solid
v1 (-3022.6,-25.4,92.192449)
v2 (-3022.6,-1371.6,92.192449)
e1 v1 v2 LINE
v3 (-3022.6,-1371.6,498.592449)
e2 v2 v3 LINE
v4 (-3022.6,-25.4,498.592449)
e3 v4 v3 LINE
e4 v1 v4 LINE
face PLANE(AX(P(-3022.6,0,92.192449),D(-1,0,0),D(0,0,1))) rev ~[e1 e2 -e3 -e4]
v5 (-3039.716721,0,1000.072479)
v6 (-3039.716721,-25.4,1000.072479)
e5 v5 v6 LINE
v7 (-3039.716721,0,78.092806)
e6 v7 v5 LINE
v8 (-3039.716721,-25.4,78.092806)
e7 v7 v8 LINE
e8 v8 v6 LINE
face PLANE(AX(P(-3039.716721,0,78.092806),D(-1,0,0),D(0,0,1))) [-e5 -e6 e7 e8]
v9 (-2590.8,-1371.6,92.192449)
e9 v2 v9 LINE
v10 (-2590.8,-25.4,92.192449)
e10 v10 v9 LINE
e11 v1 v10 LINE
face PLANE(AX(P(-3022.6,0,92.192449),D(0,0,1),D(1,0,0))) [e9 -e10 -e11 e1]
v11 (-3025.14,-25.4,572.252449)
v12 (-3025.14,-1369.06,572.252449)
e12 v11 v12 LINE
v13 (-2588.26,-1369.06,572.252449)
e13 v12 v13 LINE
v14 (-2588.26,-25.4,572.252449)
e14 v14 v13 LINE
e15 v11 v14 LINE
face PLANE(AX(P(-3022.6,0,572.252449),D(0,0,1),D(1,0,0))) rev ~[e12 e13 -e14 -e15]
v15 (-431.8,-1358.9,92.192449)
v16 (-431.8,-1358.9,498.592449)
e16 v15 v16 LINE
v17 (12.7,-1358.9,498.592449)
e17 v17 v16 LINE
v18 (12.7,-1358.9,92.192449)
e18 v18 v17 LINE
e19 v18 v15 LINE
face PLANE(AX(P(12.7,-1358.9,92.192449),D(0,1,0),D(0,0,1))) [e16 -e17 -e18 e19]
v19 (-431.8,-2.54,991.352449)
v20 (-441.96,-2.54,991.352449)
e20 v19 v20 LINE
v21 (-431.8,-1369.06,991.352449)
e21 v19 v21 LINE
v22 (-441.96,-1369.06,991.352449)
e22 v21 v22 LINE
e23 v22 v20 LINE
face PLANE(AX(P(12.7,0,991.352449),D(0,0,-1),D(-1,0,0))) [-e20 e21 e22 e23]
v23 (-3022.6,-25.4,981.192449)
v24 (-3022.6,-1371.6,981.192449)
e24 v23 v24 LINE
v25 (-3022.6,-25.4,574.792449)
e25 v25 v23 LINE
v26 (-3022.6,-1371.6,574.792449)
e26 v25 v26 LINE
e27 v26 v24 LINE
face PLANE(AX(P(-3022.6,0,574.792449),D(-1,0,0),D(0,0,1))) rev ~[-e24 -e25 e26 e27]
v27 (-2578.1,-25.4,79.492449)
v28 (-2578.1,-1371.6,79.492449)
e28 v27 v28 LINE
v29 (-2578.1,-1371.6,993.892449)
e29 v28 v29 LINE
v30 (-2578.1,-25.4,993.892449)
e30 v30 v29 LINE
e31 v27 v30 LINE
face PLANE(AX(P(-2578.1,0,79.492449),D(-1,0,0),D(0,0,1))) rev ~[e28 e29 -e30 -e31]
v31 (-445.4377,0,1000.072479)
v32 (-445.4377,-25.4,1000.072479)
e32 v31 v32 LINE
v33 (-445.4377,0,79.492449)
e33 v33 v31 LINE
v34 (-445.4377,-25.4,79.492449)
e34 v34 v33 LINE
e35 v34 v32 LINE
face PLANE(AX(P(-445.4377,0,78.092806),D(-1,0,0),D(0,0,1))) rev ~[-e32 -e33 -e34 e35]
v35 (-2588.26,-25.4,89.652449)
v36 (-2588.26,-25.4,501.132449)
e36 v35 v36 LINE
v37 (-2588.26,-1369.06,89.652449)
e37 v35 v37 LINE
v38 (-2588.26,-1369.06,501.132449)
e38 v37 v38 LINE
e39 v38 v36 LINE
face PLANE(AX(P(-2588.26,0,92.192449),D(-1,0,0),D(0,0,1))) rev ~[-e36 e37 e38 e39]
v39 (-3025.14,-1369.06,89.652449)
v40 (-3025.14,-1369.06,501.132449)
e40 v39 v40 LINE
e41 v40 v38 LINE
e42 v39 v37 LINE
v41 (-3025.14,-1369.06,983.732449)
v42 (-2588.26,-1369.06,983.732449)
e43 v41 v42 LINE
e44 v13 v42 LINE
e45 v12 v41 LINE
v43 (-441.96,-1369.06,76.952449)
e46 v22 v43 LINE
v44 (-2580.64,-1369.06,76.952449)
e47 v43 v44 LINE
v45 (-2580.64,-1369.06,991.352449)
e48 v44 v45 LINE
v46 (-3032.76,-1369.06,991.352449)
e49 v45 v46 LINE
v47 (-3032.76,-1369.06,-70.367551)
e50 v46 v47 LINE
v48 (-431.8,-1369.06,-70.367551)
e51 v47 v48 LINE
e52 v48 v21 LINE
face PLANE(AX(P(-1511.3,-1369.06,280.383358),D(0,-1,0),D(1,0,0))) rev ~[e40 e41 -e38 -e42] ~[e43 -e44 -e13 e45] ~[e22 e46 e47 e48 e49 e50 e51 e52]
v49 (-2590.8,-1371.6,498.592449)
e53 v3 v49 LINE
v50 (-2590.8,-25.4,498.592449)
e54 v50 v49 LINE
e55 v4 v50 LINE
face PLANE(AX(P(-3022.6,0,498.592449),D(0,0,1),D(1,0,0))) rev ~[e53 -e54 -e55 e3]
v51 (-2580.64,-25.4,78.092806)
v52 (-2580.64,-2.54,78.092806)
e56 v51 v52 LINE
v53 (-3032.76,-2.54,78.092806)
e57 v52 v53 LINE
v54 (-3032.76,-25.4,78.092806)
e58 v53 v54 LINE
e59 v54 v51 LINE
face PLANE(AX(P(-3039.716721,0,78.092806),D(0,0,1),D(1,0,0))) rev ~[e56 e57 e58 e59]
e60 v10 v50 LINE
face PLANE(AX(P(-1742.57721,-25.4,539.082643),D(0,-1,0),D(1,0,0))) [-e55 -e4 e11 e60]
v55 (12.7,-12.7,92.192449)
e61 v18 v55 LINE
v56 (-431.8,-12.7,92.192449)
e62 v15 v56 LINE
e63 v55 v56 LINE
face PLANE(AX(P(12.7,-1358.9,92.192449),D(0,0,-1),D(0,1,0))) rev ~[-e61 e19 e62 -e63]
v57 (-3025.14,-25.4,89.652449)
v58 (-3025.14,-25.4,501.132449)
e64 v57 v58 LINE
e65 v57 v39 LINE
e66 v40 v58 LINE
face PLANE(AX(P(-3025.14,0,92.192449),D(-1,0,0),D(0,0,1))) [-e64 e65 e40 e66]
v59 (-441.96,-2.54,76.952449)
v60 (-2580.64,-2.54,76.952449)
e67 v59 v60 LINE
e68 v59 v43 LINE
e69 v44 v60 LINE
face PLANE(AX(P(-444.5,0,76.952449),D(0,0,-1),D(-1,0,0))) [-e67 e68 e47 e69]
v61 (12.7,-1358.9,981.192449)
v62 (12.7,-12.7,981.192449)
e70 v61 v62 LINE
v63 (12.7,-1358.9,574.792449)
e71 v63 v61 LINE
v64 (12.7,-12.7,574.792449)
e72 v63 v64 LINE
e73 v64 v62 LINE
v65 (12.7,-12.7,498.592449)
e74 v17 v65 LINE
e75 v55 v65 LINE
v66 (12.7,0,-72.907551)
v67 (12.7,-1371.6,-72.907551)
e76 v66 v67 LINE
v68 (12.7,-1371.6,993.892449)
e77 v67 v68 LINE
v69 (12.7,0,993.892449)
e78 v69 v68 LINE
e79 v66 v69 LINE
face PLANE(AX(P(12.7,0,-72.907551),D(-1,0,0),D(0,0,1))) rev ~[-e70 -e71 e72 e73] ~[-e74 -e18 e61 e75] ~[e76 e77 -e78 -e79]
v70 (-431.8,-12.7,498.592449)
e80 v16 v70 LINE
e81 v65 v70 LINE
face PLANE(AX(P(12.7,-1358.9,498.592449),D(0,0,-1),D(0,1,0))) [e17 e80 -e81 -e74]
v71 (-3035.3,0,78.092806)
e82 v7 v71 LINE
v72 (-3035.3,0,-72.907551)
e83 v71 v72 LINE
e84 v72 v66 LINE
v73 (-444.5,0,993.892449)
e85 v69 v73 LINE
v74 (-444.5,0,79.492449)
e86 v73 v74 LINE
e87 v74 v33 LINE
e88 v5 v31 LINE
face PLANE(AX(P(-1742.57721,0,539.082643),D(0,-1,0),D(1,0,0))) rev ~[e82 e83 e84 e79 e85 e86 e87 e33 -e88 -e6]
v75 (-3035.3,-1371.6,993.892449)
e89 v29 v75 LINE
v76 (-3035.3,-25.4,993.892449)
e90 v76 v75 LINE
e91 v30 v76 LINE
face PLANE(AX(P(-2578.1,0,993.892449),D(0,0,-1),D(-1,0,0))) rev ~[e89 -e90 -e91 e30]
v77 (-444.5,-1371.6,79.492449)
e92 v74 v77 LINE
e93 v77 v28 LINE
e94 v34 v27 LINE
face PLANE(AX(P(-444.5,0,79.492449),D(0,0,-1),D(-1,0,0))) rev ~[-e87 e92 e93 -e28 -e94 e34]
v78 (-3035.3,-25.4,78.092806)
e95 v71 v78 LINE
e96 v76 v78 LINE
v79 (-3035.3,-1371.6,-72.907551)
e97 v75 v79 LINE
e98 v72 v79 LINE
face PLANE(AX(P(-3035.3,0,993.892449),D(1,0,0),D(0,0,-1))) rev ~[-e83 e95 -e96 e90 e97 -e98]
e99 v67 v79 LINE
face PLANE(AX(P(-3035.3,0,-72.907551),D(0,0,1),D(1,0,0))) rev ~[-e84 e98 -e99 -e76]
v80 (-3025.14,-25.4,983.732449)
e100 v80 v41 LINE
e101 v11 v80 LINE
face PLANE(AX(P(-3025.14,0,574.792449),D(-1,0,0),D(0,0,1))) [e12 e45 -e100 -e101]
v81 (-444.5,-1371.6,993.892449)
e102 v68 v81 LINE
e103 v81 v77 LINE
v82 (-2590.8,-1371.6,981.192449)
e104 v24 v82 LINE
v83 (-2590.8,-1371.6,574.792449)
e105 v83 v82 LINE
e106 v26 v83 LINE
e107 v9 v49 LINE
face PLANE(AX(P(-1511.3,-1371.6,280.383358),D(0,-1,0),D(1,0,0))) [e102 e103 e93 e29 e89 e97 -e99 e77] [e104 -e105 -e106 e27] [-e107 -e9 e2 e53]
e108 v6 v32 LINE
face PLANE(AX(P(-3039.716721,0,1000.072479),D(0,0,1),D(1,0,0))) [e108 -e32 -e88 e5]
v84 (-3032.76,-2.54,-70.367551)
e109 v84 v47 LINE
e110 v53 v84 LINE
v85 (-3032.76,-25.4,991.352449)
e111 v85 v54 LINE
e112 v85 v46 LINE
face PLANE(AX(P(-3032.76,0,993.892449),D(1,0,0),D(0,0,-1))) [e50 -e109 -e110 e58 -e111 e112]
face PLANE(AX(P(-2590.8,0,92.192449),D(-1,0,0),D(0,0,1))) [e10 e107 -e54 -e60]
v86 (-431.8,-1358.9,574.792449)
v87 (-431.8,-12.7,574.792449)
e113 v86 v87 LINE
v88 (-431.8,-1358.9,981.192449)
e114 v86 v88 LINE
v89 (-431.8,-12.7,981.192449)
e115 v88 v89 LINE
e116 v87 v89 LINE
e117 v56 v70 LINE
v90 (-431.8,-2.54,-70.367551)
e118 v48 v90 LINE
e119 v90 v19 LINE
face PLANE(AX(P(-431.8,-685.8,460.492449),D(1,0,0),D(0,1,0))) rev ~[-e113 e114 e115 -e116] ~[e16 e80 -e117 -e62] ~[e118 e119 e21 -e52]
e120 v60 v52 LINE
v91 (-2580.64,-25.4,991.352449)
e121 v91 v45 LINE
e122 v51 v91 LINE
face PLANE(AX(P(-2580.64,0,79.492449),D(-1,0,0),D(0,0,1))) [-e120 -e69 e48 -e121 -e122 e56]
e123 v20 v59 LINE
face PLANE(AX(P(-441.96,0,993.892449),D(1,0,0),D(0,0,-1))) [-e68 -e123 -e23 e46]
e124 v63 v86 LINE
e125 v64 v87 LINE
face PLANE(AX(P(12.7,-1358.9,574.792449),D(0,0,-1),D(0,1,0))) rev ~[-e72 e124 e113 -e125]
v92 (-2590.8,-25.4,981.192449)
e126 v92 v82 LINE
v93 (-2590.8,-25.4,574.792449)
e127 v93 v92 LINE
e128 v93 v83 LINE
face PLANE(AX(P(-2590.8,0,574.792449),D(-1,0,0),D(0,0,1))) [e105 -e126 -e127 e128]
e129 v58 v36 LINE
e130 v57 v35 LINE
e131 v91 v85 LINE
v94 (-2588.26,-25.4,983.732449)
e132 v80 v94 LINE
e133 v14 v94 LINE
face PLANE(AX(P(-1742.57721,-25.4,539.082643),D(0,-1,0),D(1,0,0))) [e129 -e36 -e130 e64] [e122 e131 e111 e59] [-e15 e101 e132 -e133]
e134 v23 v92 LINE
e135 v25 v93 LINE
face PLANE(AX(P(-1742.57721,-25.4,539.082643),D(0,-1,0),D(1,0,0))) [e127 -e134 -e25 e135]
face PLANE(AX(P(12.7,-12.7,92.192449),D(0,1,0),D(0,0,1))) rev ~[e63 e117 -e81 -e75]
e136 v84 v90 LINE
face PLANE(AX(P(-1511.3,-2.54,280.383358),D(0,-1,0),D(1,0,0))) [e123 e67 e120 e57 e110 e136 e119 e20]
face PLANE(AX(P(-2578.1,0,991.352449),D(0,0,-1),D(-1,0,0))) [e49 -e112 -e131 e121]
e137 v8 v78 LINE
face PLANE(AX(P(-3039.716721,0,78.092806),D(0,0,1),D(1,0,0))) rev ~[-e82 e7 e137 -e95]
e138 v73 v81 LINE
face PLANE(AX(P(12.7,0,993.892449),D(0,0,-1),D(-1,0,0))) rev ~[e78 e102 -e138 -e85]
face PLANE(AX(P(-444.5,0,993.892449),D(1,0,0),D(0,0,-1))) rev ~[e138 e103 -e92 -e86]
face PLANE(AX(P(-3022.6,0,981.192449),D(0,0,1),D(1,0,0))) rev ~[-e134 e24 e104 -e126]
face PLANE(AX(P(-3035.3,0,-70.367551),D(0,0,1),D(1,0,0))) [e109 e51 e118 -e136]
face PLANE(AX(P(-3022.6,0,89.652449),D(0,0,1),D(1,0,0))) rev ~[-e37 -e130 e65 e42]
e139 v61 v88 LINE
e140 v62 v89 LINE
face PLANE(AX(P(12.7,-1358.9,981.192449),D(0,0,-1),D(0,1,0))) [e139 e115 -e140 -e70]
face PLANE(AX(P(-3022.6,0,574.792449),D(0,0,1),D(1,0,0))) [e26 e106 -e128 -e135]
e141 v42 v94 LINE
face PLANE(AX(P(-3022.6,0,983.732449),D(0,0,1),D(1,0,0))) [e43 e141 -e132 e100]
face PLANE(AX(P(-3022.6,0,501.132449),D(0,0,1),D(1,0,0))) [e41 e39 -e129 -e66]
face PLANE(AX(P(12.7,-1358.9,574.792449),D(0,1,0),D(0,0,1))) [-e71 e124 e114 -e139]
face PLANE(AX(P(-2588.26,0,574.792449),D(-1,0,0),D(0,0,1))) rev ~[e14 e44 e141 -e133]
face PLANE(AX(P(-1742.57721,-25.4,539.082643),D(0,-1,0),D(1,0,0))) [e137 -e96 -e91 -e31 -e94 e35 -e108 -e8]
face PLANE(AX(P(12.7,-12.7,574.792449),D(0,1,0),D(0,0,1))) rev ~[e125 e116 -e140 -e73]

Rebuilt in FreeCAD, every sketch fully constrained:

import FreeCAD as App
import Part
import Sketcher
from FreeCAD import Vector
Q = App.Units.Quantity


def faces_at(feature, points):
    """Names of the faces that lie closest to the given points."""
    faces = feature.Shape.Faces
    near = lambda p: min(range(len(faces)), key=lambda i: faces[i].distToShape(Part.Vertex(*p))[0])
    return sorted({f"Face{near(p) + 1}" for p in points})

doc = App.newDocument("Part")
body = doc.addObject("PartDesign::Body", "Body")

sketch1 = doc.addObject("Sketcher::SketchObject", "Sketch")
body.addObject(sketch1)
sketch1.AttachmentSupport = (doc.XZ_Plane, [""])
sketch1.MapMode = "FlatFace"
sketch1.addGeometry(Part.LineSegment(Vector(-444, 79, 0), Vector(-2578, 79, 0)), False)
sketch1.addGeometry(Part.LineSegment(Vector(-2578, 79, 0), Vector(-2578, 994, 0)), False)
sketch1.addGeometry(Part.LineSegment(Vector(-2578, 994, 0), Vector(-3035, 994, 0)), False)
sketch1.addGeometry(Part.LineSegment(Vector(-3035, 994, 0), Vector(-3035, -73, 0)), False)
sketch1.addGeometry(Part.LineSegment(Vector(-3035, -73, 0), Vector(13, -73, 0)), False)
sketch1.addGeometry(Part.LineSegment(Vector(13, -73, 0), Vector(13, 994, 0)), False)
sketch1.addGeometry(Part.LineSegment(Vector(13, 994, 0), Vector(-444, 994, 0)), False)
sketch1.addGeometry(Part.LineSegment(Vector(-444, 994, 0), Vector(-444, 79, 0)), False)
sketch1.addGeometry(Part.LineSegment(Vector(-2591, 92, 0), Vector(-3023, 92, 0)), False)
sketch1.addGeometry(Part.LineSegment(Vector(-3023, 92, 0), Vector(-3023, 499, 0)), False)
sketch1.addGeometry(Part.LineSegment(Vector(-3023, 499, 0), Vector(-2591, 499, 0)), False)
sketch1.addGeometry(Part.LineSegment(Vector(-2591, 499, 0), Vector(-2591, 92, 0)), False)
sketch1.addGeometry(Part.LineSegment(Vector(-2591, 575, 0), Vector(-3023, 575, 0)), False)
sketch1.addGeometry(Part.LineSegment(Vector(-3023, 575, 0), Vector(-3023, 981, 0)), False)
sketch1.addGeometry(Part.LineSegment(Vector(-3023, 981, 0), Vector(-2591, 981, 0)), False)
sketch1.addGeometry(Part.LineSegment(Vector(-2591, 981, 0), Vector(-2591, 575, 0)), False)
sketch1.addConstraint(Sketcher.Constraint("Coincident", 0, 2, 1, 1))
sketch1.addConstraint(Sketcher.Constraint("Coincident", 1, 2, 2, 1))
sketch1.addConstraint(Sketcher.Constraint("Coincident", 2, 2, 3, 1))
sketch1.addConstraint(Sketcher.Constraint("Coincident", 3, 2, 4, 1))
sketch1.addConstraint(Sketcher.Constraint("Coincident", 4, 2, 5, 1))
sketch1.addConstraint(Sketcher.Constraint("Coincident", 5, 2, 6, 1))
sketch1.addConstraint(Sketcher.Constraint("Coincident", 6, 2, 7, 1))
sketch1.addConstraint(Sketcher.Constraint("Coincident", 7, 2, 0, 1))
sketch1.addConstraint(Sketcher.Constraint("Coincident", 8, 2, 9, 1))
sketch1.addConstraint(Sketcher.Constraint("Coincident", 9, 2, 10, 1))
sketch1.addConstraint(Sketcher.Constraint("Coincident", 10, 2, 11, 1))
sketch1.addConstraint(Sketcher.Constraint("Coincident", 11, 2, 8, 1))
sketch1.addConstraint(Sketcher.Constraint("Coincident", 12, 2, 13, 1))
sketch1.addConstraint(Sketcher.Constraint("Coincident", 13, 2, 14, 1))
sketch1.addConstraint(Sketcher.Constraint("Coincident", 14, 2, 15, 1))
sketch1.addConstraint(Sketcher.Constraint("Coincident", 15, 2, 12, 1))
sketch1.addConstraint(Sketcher.Constraint("Horizontal", 0))
sketch1.addConstraint(Sketcher.Constraint("Vertical", 1))
sketch1.addConstraint(Sketcher.Constraint("Horizontal", 2))
sketch1.addConstraint(Sketcher.Constraint("Vertical", 3))
sketch1.addConstraint(Sketcher.Constraint("Horizontal", 4))
sketch1.addConstraint(Sketcher.Constraint("Vertical", 5))
sketch1.addConstraint(Sketcher.Constraint("Horizontal", 6))
sketch1.addConstraint(Sketcher.Constraint("Vertical", 7))
sketch1.addConstraint(Sketcher.Constraint("Horizontal", 8))
sketch1.addConstraint(Sketcher.Constraint("Vertical", 9))
sketch1.addConstraint(Sketcher.Constraint("Horizontal", 10))
sketch1.addConstraint(Sketcher.Constraint("Vertical", 11))
sketch1.addConstraint(Sketcher.Constraint("Horizontal", 12))
sketch1.addConstraint(Sketcher.Constraint("Vertical", 13))
sketch1.addConstraint(Sketcher.Constraint("Horizontal", 14))
sketch1.addConstraint(Sketcher.Constraint("Vertical", 15))
sketch1.addConstraint(Sketcher.Constraint("Horizontal", 2, 2, 5, 2))
sketch1.addConstraint(Sketcher.Constraint("Vertical", 9, 2, 12, 2))
sketch1.addConstraint(Sketcher.Constraint("Vertical", 11, 2, 14, 2))
sketch1.addConstraint(Sketcher.Constraint("Equal", 2, 6))
sketch1.addConstraint(Sketcher.Constraint("Equal", 11, 13))
sketch1.addConstraint(Sketcher.Constraint("DistanceX", 0, 2, 0, 1, Q("84 in")))
sketch1.addConstraint(Sketcher.Constraint("DistanceX", 2, 2, 2, 1, Q("18 in")))
sketch1.addConstraint(Sketcher.Constraint("DistanceX", 8, 2, 8, 1, Q("17 in")))
sketch1.addConstraint(Sketcher.Constraint("DistanceY", 1, 1, 1, 2, Q("36 in")))
sketch1.addConstraint(Sketcher.Constraint("DistanceY", 3, 2, 3, 1, Q("42 in")))
sketch1.addConstraint(Sketcher.Constraint("DistanceY", 9, 1, 9, 2, Q("16 in")))
sketch1.addConstraint(Sketcher.Constraint("DistanceX", 8, 2, -1, 1, Q("119 in")))
sketch1.addConstraint(Sketcher.Constraint("DistanceY", 9, 2, 12, 2, Q("3 in")))
sketch1.addConstraint(Sketcher.Constraint("DistanceX", 0, 2, -1, 1, Q("101.5 in")))
sketch1.addConstraint(Sketcher.Constraint("DistanceY", 3, 2, 8, 2, Q("6.5 in")))
sketch1.addConstraint(Sketcher.Constraint("DistanceY", -1, 1, 0, 2, Q("79.492449 mm")))
pad1 = doc.addObject("PartDesign::Pad", "Pad")
body.addObject(pad1)
pad1.Profile = sketch1
pad1.Length = Q("54 in")
doc.recompute()

thickness = doc.addObject("PartDesign::Thickness", "Thickness")
body.addObject(thickness)
thickness.Base = (pad1, faces_at(pad1, [(12.7, -685.8, 460.492)]))
thickness.Value = Q("0.1 in")
thickness.Reversed = True
thickness.Join = "Intersection"

sketch2 = doc.addObject("Sketcher::SketchObject", "Sketch001")
body.addObject(sketch2)
sketch2.AttachmentSupport = (doc.YZ_Plane, [""])
sketch2.MapMode = "FlatFace"
sketch2.AttachmentOffset = App.Placement(Vector(0, 0, 0.5 * 25.4), App.Rotation())
sketch2.addGeometry(Part.LineSegment(Vector(-1372, 994, 0), Vector(-1372, -73, 0)), False)
sketch2.addGeometry(Part.LineSegment(Vector(-1372, -73, 0), Vector(0, -73, 0)), False)
sketch2.addGeometry(Part.LineSegment(Vector(0, -73, 0), Vector(0, 994, 0)), False)
sketch2.addGeometry(Part.LineSegment(Vector(0, 994, 0), Vector(-1372, 994, 0)), False)
sketch2.addGeometry(Part.LineSegment(Vector(-13, 92, 0), Vector(-1359, 92, 0)), False)
sketch2.addGeometry(Part.LineSegment(Vector(-1359, 92, 0), Vector(-1359, 499, 0)), False)
sketch2.addGeometry(Part.LineSegment(Vector(-1359, 499, 0), Vector(-13, 499, 0)), False)
sketch2.addGeometry(Part.LineSegment(Vector(-13, 499, 0), Vector(-13, 92, 0)), False)
sketch2.addGeometry(Part.LineSegment(Vector(-13, 575, 0), Vector(-1359, 575, 0)), False)
sketch2.addGeometry(Part.LineSegment(Vector(-1359, 575, 0), Vector(-1359, 981, 0)), False)
sketch2.addGeometry(Part.LineSegment(Vector(-1359, 981, 0), Vector(-13, 981, 0)), False)
sketch2.addGeometry(Part.LineSegment(Vector(-13, 981, 0), Vector(-13, 575, 0)), False)
sketch2.addConstraint(Sketcher.Constraint("Coincident", 0, 2, 1, 1))
sketch2.addConstraint(Sketcher.Constraint("Coincident", 1, 2, 2, 1))
sketch2.addConstraint(Sketcher.Constraint("Coincident", 2, 2, 3, 1))
sketch2.addConstraint(Sketcher.Constraint("Coincident", 3, 2, 0, 1))
sketch2.addConstraint(Sketcher.Constraint("Coincident", 4, 2, 5, 1))
sketch2.addConstraint(Sketcher.Constraint("Coincident", 5, 2, 6, 1))
sketch2.addConstraint(Sketcher.Constraint("Coincident", 6, 2, 7, 1))
sketch2.addConstraint(Sketcher.Constraint("Coincident", 7, 2, 4, 1))
sketch2.addConstraint(Sketcher.Constraint("Coincident", 8, 2, 9, 1))
sketch2.addConstraint(Sketcher.Constraint("Coincident", 9, 2, 10, 1))
sketch2.addConstraint(Sketcher.Constraint("Coincident", 10, 2, 11, 1))
sketch2.addConstraint(Sketcher.Constraint("Coincident", 11, 2, 8, 1))
sketch2.addConstraint(Sketcher.Constraint("Vertical", 0))
sketch2.addConstraint(Sketcher.Constraint("Horizontal", 1))
sketch2.addConstraint(Sketcher.Constraint("Vertical", 2))
sketch2.addConstraint(Sketcher.Constraint("Horizontal", 3))
sketch2.addConstraint(Sketcher.Constraint("Horizontal", 4))
sketch2.addConstraint(Sketcher.Constraint("Vertical", 5))
sketch2.addConstraint(Sketcher.Constraint("Horizontal", 6))
sketch2.addConstraint(Sketcher.Constraint("Vertical", 7))
sketch2.addConstraint(Sketcher.Constraint("Horizontal", 8))
sketch2.addConstraint(Sketcher.Constraint("Vertical", 9))
sketch2.addConstraint(Sketcher.Constraint("Horizontal", 10))
sketch2.addConstraint(Sketcher.Constraint("Vertical", 11))
sketch2.addConstraint(Sketcher.Constraint("PointOnObject", 1, 2, -2))
sketch2.addConstraint(Sketcher.Constraint("Vertical", 5, 2, 8, 2))
sketch2.addConstraint(Sketcher.Constraint("Vertical", 7, 2, 10, 2))
sketch2.addConstraint(Sketcher.Constraint("Equal", 7, 9))
sketch2.addConstraint(Sketcher.Constraint("DistanceX", 1, 1, 1, 2, Q("54 in")))
sketch2.addConstraint(Sketcher.Constraint("DistanceX", 4, 2, 4, 1, Q("53 in")))
sketch2.addConstraint(Sketcher.Constraint("DistanceY", 0, 2, 0, 1, Q("42 in")))
sketch2.addConstraint(Sketcher.Constraint("DistanceY", 5, 1, 5, 2, Q("16 in")))
sketch2.addConstraint(Sketcher.Constraint("DistanceY", 5, 2, 8, 2, Q("3 in")))
sketch2.addConstraint(Sketcher.Constraint("DistanceX", 4, 2, -1, 1, Q("53.5 in")))
sketch2.addConstraint(Sketcher.Constraint("DistanceY", 0, 2, 4, 2, Q("6.5 in")))
sketch2.addConstraint(Sketcher.Constraint("DistanceY", 0, 2, -1, 1, Q("72.907551 mm")))
pad2 = doc.addObject("PartDesign::Pad", "Pad001")
body.addObject(pad2)
pad2.Profile = sketch2
pad2.Length = Q("17.5 in")
pad2.Reversed = True

sketch3 = doc.addObject("Sketcher::SketchObject", "Sketch002")
body.addObject(sketch3)
sketch3.AttachmentSupport = (doc.XZ_Plane, [""])
sketch3.MapMode = "FlatFace"
sketch3.addGeometry(Part.LineSegment(Vector(-3040, 1000, 0), Vector(-3040, 78, 0)), False)
sketch3.addGeometry(Part.LineSegment(Vector(-3040, 78, 0), Vector(-445, 78, 0)), False)
sketch3.addGeometry(Part.LineSegment(Vector(-445, 78, 0), Vector(-445, 1000, 0)), False)
sketch3.addGeometry(Part.LineSegment(Vector(-445, 1000, 0), Vector(-3040, 1000, 0)), False)
sketch3.addConstraint(Sketcher.Constraint("Coincident", 0, 2, 1, 1))
sketch3.addConstraint(Sketcher.Constraint("Coincident", 1, 2, 2, 1))
sketch3.addConstraint(Sketcher.Constraint("Coincident", 2, 2, 3, 1))
sketch3.addConstraint(Sketcher.Constraint("Coincident", 3, 2, 0, 1))
sketch3.addConstraint(Sketcher.Constraint("Vertical", 0))
sketch3.addConstraint(Sketcher.Constraint("Horizontal", 1))
sketch3.addConstraint(Sketcher.Constraint("Vertical", 2))
sketch3.addConstraint(Sketcher.Constraint("Horizontal", 3))
sketch3.addConstraint(Sketcher.Constraint("DistanceX", 1, 1, 1, 2, Q("2594.279021 mm")))
sketch3.addConstraint(Sketcher.Constraint("DistanceX", 1, 2, -1, 1, Q("445.4377 mm")))
sketch3.addConstraint(Sketcher.Constraint("DistanceY", 0, 2, 0, 1, Q("921.979673 mm")))
sketch3.addConstraint(Sketcher.Constraint("DistanceY", -1, 1, 2, 2, Q("1000.072479 mm")))
pad3 = doc.addObject("PartDesign::Pad", "Pad002")
body.addObject(pad3)
pad3.Profile = sketch3
pad3.Length = Q("1 in")

doc.recompute()
